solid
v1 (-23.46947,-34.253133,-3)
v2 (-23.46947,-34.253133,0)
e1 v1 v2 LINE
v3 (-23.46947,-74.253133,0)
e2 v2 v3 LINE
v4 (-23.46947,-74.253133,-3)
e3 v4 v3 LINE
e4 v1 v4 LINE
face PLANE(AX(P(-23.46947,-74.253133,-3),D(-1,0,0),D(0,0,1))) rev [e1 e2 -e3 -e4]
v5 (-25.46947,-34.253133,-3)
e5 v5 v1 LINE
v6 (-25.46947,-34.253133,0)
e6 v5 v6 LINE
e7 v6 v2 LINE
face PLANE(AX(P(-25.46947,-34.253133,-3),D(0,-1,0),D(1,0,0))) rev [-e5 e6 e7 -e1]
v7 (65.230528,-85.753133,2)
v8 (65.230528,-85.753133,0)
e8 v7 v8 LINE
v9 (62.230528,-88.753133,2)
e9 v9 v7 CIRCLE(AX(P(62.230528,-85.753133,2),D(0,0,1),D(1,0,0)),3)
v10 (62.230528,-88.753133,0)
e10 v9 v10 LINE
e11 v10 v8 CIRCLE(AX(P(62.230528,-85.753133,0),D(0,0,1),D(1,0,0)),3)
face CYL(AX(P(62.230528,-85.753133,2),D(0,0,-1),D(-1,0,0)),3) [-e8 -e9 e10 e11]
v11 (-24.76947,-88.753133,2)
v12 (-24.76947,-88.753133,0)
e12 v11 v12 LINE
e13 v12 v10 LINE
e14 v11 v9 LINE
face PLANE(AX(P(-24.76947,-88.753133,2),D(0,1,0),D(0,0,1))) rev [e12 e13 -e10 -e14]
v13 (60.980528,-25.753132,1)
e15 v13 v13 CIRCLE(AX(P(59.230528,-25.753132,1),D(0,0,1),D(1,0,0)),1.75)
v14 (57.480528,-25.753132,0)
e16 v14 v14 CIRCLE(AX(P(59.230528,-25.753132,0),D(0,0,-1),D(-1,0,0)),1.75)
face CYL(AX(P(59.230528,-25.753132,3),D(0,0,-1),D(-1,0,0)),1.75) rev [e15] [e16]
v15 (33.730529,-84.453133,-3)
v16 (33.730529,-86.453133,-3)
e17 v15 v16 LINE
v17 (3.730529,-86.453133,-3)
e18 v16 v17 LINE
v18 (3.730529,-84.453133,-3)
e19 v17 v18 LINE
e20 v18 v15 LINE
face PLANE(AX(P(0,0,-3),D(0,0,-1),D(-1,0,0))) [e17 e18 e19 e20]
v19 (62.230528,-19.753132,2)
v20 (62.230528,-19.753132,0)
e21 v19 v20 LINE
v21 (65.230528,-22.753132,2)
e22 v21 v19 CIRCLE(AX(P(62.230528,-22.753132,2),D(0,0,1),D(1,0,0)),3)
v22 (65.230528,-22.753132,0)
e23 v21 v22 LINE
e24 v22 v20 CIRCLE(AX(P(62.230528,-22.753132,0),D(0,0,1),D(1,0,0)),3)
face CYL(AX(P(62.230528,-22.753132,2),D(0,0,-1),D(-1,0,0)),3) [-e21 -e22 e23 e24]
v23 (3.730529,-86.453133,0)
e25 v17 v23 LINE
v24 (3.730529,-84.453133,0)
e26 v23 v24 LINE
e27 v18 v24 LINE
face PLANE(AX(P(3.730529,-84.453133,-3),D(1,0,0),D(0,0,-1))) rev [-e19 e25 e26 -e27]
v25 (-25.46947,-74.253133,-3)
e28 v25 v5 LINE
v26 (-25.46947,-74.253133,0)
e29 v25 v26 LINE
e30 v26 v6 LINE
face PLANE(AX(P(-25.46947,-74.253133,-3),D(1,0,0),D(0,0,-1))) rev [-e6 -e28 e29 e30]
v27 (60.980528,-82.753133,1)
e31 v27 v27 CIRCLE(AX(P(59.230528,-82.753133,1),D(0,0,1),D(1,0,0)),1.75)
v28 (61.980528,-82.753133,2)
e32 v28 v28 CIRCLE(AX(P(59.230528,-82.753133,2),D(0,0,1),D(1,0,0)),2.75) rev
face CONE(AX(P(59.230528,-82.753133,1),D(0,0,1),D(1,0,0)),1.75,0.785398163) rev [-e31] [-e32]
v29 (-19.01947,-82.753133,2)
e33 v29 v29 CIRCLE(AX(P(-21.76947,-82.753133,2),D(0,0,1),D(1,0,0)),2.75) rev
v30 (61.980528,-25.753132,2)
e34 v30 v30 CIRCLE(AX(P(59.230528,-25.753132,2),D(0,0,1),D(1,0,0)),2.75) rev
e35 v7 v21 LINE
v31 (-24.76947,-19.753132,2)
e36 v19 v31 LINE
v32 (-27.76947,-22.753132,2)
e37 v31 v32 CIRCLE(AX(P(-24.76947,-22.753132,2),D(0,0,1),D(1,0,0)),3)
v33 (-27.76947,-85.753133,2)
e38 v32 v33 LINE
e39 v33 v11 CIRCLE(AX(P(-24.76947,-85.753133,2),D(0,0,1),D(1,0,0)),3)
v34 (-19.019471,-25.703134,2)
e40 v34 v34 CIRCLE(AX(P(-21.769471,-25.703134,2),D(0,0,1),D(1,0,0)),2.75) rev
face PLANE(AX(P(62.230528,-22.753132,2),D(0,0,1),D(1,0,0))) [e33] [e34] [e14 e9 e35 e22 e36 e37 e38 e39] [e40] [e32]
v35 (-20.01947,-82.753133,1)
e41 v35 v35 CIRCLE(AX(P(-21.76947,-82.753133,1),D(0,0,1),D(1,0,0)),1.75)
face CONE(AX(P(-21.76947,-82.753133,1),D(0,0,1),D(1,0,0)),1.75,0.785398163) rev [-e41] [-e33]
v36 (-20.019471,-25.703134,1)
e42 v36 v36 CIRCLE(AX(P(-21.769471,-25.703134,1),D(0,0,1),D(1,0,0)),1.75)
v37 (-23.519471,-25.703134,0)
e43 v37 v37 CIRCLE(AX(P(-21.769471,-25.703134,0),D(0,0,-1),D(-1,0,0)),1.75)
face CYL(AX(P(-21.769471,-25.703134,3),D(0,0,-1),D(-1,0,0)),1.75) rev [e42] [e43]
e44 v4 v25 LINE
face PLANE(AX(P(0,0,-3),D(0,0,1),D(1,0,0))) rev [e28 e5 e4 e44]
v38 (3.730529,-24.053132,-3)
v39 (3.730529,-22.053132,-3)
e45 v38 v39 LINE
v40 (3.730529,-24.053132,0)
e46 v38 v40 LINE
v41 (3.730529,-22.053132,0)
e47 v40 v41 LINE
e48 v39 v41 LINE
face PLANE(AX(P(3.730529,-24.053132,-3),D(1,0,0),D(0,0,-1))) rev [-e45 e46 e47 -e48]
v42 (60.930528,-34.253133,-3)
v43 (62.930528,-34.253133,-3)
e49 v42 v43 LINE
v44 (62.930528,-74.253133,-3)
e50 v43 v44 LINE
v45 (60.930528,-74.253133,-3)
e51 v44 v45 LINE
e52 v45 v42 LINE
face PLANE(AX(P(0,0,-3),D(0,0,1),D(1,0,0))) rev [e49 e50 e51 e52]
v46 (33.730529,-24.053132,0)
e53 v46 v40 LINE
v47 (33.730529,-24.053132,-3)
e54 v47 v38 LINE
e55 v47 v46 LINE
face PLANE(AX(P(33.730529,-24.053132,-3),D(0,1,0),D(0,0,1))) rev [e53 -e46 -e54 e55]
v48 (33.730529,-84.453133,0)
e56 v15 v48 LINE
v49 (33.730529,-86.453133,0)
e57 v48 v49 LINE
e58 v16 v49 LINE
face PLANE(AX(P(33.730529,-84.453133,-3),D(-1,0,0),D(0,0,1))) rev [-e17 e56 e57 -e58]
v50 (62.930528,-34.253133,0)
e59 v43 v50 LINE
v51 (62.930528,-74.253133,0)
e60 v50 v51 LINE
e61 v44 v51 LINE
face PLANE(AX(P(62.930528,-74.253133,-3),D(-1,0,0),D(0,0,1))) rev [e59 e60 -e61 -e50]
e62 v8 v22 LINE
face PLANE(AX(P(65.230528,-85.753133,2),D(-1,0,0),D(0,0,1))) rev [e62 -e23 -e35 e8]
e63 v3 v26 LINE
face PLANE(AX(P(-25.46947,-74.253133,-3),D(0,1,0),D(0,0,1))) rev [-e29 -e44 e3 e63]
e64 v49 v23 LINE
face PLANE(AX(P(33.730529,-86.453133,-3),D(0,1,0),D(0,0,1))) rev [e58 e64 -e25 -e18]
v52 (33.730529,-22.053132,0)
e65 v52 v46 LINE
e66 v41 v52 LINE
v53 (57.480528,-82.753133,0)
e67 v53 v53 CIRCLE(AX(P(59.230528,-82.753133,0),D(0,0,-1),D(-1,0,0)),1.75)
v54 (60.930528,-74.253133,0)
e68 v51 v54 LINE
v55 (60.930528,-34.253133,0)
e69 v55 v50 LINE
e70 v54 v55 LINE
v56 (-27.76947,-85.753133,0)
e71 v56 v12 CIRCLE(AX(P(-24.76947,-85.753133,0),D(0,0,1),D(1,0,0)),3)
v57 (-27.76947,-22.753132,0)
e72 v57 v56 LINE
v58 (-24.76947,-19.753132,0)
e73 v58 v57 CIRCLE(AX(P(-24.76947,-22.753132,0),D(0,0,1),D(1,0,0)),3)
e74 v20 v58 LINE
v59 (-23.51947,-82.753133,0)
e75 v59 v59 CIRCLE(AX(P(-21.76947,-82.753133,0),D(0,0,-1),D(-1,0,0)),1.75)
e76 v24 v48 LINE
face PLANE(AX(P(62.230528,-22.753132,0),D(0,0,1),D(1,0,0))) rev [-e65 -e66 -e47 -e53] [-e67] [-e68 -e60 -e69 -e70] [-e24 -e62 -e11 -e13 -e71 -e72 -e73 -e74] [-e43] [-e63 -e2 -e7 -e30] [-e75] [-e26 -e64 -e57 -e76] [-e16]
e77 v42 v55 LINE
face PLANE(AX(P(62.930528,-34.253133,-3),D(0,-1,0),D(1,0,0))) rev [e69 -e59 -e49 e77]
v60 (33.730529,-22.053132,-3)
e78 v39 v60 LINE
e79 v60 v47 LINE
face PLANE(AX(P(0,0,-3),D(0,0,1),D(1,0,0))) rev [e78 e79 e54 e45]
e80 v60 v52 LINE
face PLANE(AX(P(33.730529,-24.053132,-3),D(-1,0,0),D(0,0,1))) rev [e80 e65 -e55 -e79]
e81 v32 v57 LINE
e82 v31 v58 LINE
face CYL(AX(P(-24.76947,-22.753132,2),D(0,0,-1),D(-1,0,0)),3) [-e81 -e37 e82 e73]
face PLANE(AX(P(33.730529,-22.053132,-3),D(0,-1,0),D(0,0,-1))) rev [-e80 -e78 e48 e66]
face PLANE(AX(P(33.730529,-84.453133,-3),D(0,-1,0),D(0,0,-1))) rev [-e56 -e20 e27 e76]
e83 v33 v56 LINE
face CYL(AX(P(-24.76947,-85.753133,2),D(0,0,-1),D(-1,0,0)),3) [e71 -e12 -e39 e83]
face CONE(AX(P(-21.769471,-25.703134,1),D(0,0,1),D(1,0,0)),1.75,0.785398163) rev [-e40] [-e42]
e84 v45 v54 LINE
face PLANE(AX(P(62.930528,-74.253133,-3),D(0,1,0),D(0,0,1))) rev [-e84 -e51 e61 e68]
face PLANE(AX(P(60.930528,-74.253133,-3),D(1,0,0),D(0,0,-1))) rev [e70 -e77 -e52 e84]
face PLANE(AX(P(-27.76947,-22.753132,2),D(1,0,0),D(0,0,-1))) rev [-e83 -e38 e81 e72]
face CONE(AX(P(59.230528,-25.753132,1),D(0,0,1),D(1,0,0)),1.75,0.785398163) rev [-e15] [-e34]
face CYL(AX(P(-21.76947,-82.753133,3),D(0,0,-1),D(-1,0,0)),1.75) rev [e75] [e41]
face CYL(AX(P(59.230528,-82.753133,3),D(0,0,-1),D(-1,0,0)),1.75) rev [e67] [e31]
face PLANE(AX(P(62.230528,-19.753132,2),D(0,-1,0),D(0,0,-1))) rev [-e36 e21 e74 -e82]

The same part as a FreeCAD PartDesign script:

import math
import FreeCAD as App
import Part
import Sketcher

V = App.Vector
Q = App.Units.Quantity


def edges_at(feature, points):
    """Names of the edges that pass closest to the given points."""
    edges = feature.Shape.Edges
    near = lambda p: min(range(len(edges)), key=lambda i: edges[i].distToShape(Part.Vertex(*p))[0])
    return sorted({f"Edge{near(p) + 1}" for p in points})


def add_polygon(sketch, points):
    """Adds a closed chain of lines whose ends are joined by coincident constraints."""
    first, n = sketch.GeometryCount, len(points)
    for a, b in zip(points, points[1:] + points[:1]):
        sketch.addGeometry(Part.LineSegment(App.Vector(*a, 0), App.Vector(*b, 0)), False)
    for i in range(n):
        sketch.addConstraint(Sketcher.Constraint("Coincident", first + i, 2, first + (i + 1) % n, 1))

doc = App.newDocument("Part")
body = doc.addObject("PartDesign::Body", "Body")

sketch1 = doc.addObject("Sketcher::SketchObject", "Sketch")
body.addObject(sketch1)
sketch1.AttachmentSupport = (doc.XY_Plane, [""])
sketch1.MapMode = "FlatFace"
sketch1.addGeometry(Part.LineSegment(V(65.2, -85.8, 0), V(65.2, -22.8, 0)), False)
sketch1.addGeometry(Part.ArcOfCircle(Part.Circle(V(62.2, -22.8, 0), V(0, 0, 1), 3), math.radians(0), math.radians(90)), False)
sketch1.addGeometry(Part.LineSegment(V(62.2, -19.8, 0), V(-24.8, -19.8, 0)), False)
sketch1.addGeometry(Part.ArcOfCircle(Part.Circle(V(-24.8, -22.8, 0), V(0, 0, 1), 3), math.radians(90), math.radians(180)), False)
sketch1.addGeometry(Part.LineSegment(V(-27.8, -22.8, 0), V(-27.8, -85.8, 0)), False)
sketch1.addGeometry(Part.ArcOfCircle(Part.Circle(V(-24.8, -85.8, 0), V(0, 0, 1), 3), math.radians(180), math.radians(270)), False)
sketch1.addGeometry(Part.LineSegment(V(-24.8, -88.8, 0), V(62.2, -88.8, 0)), False)
sketch1.addGeometry(Part.ArcOfCircle(Part.Circle(V(62.2, -85.8, 0), V(0, 0, 1), 3), math.radians(-90), math.radians(0)), False)
sketch1.addConstraint(Sketcher.Constraint("Tangent", 0, 2, 1, 1))
sketch1.addConstraint(Sketcher.Constraint("Tangent", 1, 2, 2, 1))
sketch1.addConstraint(Sketcher.Constraint("Tangent", 2, 2, 3, 1))
sketch1.addConstraint(Sketcher.Constraint("Tangent", 3, 2, 4, 1))
sketch1.addConstraint(Sketcher.Constraint("Tangent", 4, 2, 5, 1))
sketch1.addConstraint(Sketcher.Constraint("Tangent", 5, 2, 6, 1))
sketch1.addConstraint(Sketcher.Constraint("Tangent", 6, 2, 7, 1))
sketch1.addConstraint(Sketcher.Constraint("Tangent", 7, 2, 0, 1))
sketch1.addConstraint(Sketcher.Constraint("Vertical", 0))
sketch1.addConstraint(Sketcher.Constraint("Horizontal", 2))
sketch1.addConstraint(Sketcher.Constraint("Vertical", 4))
sketch1.addConstraint(Sketcher.Constraint("Horizontal", 6))
sketch1.addConstraint(Sketcher.Constraint("Equal", 1, 3))
sketch1.addConstraint(Sketcher.Constraint("Equal", 3, 5))
sketch1.addConstraint(Sketcher.Constraint("Equal", 5, 7))
sketch1.addConstraint(Sketcher.Constraint("Radius", 1, Q("3 mm")))
sketch1.addConstraint(Sketcher.Constraint("DistanceX", 2, 2, 2, 1, Q("86.999999 mm")))
sketch1.addConstraint(Sketcher.Constraint("DistanceY", 0, 1, 0, 2, Q("63.000001 mm")))
sketch1.addConstraint(Sketcher.Constraint("DistanceX", -1, 1, 1, 3, Q("62.230528 mm")))
sketch1.addConstraint(Sketcher.Constraint("DistanceY", 1, 3, -1, 1, Q("22.753132 mm")))
pad1 = doc.addObject("PartDesign::Pad", "Pad")
body.addObject(pad1)
pad1.Profile = sketch1
pad1.Length = 2

sketch2 = doc.addObject("Sketcher::SketchObject", "Sketch001")
body.addObject(sketch2)
sketch2.AttachmentSupport = (doc.XY_Plane, [""])
sketch2.MapMode = "FlatFace"
add_polygon(sketch2, [(62.9, -34.3), (62.9, -74.3), (60.9, -74.3), (60.9, -34.3)])
add_polygon(sketch2, [(-23.5, -34.3), (-23.5, -74.3), (-25.5, -74.3), (-25.5, -34.3)])
add_polygon(sketch2, [(33.7, -22.1), (33.7, -24.1), (3.7, -24.1), (3.7, -22.1)])
add_polygon(sketch2, [(33.7, -84.5), (33.7, -86.5), (3.7, -86.5), (3.7, -84.5)])
sketch2.addConstraint(Sketcher.Constraint("Vertical", 0))
sketch2.addConstraint(Sketcher.Constraint("Horizontal", 1))
sketch2.addConstraint(Sketcher.Constraint("Vertical", 2))
sketch2.addConstraint(Sketcher.Constraint("Horizontal", 3))
sketch2.addConstraint(Sketcher.Constraint("Vertical", 4))
sketch2.addConstraint(Sketcher.Constraint("Horizontal", 5))
sketch2.addConstraint(Sketcher.Constraint("Vertical", 6))
sketch2.addConstraint(Sketcher.Constraint("Horizontal", 7))
sketch2.addConstraint(Sketcher.Constraint("Vertical", 8))
sketch2.addConstraint(Sketcher.Constraint("Horizontal", 9))
sketch2.addConstraint(Sketcher.Constraint("Vertical", 10))
sketch2.addConstraint(Sketcher.Constraint("Horizontal", 11))
sketch2.addConstraint(Sketcher.Constraint("Vertical", 12))
sketch2.addConstraint(Sketcher.Constraint("Horizontal", 13))
sketch2.addConstraint(Sketcher.Constraint("Vertical", 14))
sketch2.addConstraint(Sketcher.Constraint("Horizontal", 15))
sketch2.addConstraint(Sketcher.Constraint("Horizontal", 1, 2, 4, 2))
sketch2.addConstraint(Sketcher.Constraint("Horizontal", 3, 2, 6, 2))
sketch2.addConstraint(Sketcher.Constraint("Vertical", 11, 2, 12, 2))
sketch2.addConstraint(Sketcher.Constraint("Vertical", 10, 2, 13, 2))
sketch2.addConstraint(Sketcher.Constraint("Equal", 3, 5))
sketch2.addConstraint(Sketcher.Constraint("Equal", 7, 8))
sketch2.addConstraint(Sketcher.Constraint("Equal", 10, 12))
sketch2.addConstraint(Sketcher.Constraint("DistanceX", 1, 2, 1, 1, Q("2 mm")))
sketch2.addConstraint(Sketcher.Constraint("DistanceX", 9, 2, 9, 1, Q("30 mm")))
sketch2.addConstraint(Sketcher.Constraint("DistanceY", 0, 2, 0, 1, Q("40 mm")))
sketch2.addConstraint(Sketcher.Constraint("DistanceX", 4, 2, 1, 2, Q("84.399999 mm")))
sketch2.addConstraint(Sketcher.Constraint("DistanceX", 8, 2, 2, 2, Q("27.199999 mm")))
sketch2.addConstraint(Sketcher.Constraint("DistanceY", 2, 2, 8, 2, Q("10.200001 mm")))
sketch2.addConstraint(Sketcher.Constraint("DistanceY", 12, 2, 1, 2, Q("12.200001 mm")))
sketch2.addConstraint(Sketcher.Constraint("DistanceX", -1, 1, 0, 2, Q("62.930528 mm")))
sketch2.addConstraint(Sketcher.Constraint("DistanceY", 0, 2, -1, 1, Q("74.253133 mm")))
pad2 = doc.addObject("PartDesign::Pad", "Pad001")
body.addObject(pad2)
pad2.Profile = sketch2
pad2.Length = 3
pad2.Reversed = True

sketch3 = doc.addObject("Sketcher::SketchObject", "Sketch002")
body.addObject(sketch3)
sketch3.AttachmentSupport = (doc.XY_Plane, [""])
sketch3.MapMode = "FlatFace"
sketch3.addGeometry(Part.Circle(V(59.2, -25.8, 0), V(0, 0, 1), 1.8), False)
sketch3.addGeometry(Part.Circle(V(-21.8, -25.7, 0), V(0, 0, 1), 1.8), False)
sketch3.addGeometry(Part.Circle(V(-21.8, -82.8, 0), V(0, 0, 1), 1.8), False)
sketch3.addGeometry(Part.Circle(V(59.2, -82.8, 0), V(0, 0, 1), 1.8), False)
sketch3.addConstraint(Sketcher.Constraint("Equal", 0, 1))
sketch3.addConstraint(Sketcher.Constraint("Equal", 1, 2))
sketch3.addConstraint(Sketcher.Constraint("Equal", 2, 3))
sketch3.addConstraint(Sketcher.Constraint("Horizontal", 2, 3, 3, 3))
sketch3.addConstraint(Sketcher.Constraint("Vertical", 1, 3, 2, 3))
sketch3.addConstraint(Sketcher.Constraint("Vertical", 0, 3, 3, 3))
sketch3.addConstraint(Sketcher.Constraint("Diameter", 0, Q("3.5 mm")))
sketch3.addConstraint(Sketcher.Constraint("DistanceX", 1, 3, 0, 3, Q("80.999999 mm")))
sketch3.addConstraint(Sketcher.Constraint("DistanceY", 2, 3, 0, 3, Q("57.000001 mm")))
sketch3.addConstraint(Sketcher.Constraint("DistanceY", 0, 3, 1, 3, Q("0.049998 mm")))
sketch3.addConstraint(Sketcher.Constraint("DistanceX", -1, 1, 0, 3, Q("59.230528 mm")))
sketch3.addConstraint(Sketcher.Constraint("DistanceY", 0, 3, -1, 1, Q("25.753132 mm")))
pocket1 = doc.addObject("PartDesign::Pocket", "Pocket")
body.addObject(pocket1)
pocket1.Profile = sketch3
pocket1.Length = 3
pocket1.Reversed = True
doc.recompute()

chamfer = doc.addObject("PartDesign::Chamfer", "Chamfer")
body.addObject(chamfer)
chamfer.Base = (pocket1, edges_at(pocket1, [
    (60.981, -82.753, 2),
    (-20.019, -82.753, 2),
    (-20.019, -25.703, 2),
    (60.981, -25.753, 2),
]))
chamfer.Size = 1

doc.recompute()
